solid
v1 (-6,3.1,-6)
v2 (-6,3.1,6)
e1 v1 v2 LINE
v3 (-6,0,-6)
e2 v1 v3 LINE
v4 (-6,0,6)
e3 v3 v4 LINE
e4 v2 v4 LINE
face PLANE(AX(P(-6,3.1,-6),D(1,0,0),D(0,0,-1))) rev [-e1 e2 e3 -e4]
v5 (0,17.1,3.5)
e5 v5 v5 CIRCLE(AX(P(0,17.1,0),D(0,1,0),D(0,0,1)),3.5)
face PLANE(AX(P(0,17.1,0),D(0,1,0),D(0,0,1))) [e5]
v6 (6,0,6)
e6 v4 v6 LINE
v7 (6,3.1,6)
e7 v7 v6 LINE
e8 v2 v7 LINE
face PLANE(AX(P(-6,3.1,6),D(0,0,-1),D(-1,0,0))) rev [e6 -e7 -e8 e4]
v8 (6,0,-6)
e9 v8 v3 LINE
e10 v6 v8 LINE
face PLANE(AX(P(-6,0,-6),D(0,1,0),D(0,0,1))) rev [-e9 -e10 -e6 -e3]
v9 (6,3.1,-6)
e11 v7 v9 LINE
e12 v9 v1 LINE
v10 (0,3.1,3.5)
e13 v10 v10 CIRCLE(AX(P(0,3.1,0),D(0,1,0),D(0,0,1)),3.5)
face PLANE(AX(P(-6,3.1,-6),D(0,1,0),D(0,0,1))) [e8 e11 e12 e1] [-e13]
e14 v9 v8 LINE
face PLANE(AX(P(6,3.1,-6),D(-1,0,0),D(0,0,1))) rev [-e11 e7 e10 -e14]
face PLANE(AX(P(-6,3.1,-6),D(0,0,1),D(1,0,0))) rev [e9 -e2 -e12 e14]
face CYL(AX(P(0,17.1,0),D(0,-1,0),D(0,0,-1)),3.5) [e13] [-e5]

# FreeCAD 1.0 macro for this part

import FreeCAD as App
import Part
import Sketcher
from FreeCAD import Vector
Q = App.Units.Quantity

doc = App.newDocument("Part")
body = doc.addObject("PartDesign::Body", "Body")

sketch1 = body.newObject("Sketcher::SketchObject", "Sketch")
sketch1.AttachmentSupport = (doc.getObject("XZ_Plane"), [""])
sketch1.MapMode = "FlatFace"
sketch1.addGeometry([
    Part.LineSegment(Vector(-6, -6, 0), Vector(-6, 6, 0)),
    Part.LineSegment(Vector(-6, 6, 0), Vector(6, 6, 0)),
    Part.LineSegment(Vector(6, 6, 0), Vector(6, -6, 0)),
    Part.LineSegment(Vector(6, -6, 0), Vector(-6, -6, 0)),
], False)
sketch1.addConstraint([
    Sketcher.Constraint("Coincident", 0, 2, 1, 1),
    Sketcher.Constraint("Coincident", 1, 2, 2, 1),
    Sketcher.Constraint("Coincident", 2, 2, 3, 1),
    Sketcher.Constraint("Coincident", 3, 2, 0, 1),
    Sketcher.Constraint("Vertical", 0),
    Sketcher.Constraint("Horizontal", 1),
    Sketcher.Constraint("Vertical", 2),
    Sketcher.Constraint("Horizontal", 3),
    Sketcher.Constraint("Symmetric", 0, 2, 2, 2, -1, 1),
    Sketcher.Constraint("Equal", 3, 0),
    Sketcher.Constraint("DistanceX", 1, 1, 1, 2, Q("12 mm")),
])
pad1 = body.newObject("PartDesign::Pad", "Pad")
pad1.Profile = sketch1
pad1.Length = 3.1
pad1.Reversed = True

sketch2 = body.newObject("Sketcher::SketchObject", "Sketch001")
sketch2.AttachmentSupport = (doc.getObject("XZ_Plane"), [""])
sketch2.MapMode = "FlatFace"
sketch2.AttachmentOffset = App.Placement(Vector(0, 0, -3.1), App.Rotation())
sketch2.addGeometry(Part.Circle(Vector(0, 0, 0), Vector(0, 0, 1), 3.5), False)
sketch2.addConstraint([
    Sketcher.Constraint("Coincident", 0, 3, -1, 1),
    Sketcher.Constraint("Diameter", 0, Q("7 mm")),
])
pad2 = body.newObject("PartDesign::Pad", "Pad001")
pad2.Profile = sketch2
pad2.Length = 14
pad2.Reversed = True

doc.recompute()
